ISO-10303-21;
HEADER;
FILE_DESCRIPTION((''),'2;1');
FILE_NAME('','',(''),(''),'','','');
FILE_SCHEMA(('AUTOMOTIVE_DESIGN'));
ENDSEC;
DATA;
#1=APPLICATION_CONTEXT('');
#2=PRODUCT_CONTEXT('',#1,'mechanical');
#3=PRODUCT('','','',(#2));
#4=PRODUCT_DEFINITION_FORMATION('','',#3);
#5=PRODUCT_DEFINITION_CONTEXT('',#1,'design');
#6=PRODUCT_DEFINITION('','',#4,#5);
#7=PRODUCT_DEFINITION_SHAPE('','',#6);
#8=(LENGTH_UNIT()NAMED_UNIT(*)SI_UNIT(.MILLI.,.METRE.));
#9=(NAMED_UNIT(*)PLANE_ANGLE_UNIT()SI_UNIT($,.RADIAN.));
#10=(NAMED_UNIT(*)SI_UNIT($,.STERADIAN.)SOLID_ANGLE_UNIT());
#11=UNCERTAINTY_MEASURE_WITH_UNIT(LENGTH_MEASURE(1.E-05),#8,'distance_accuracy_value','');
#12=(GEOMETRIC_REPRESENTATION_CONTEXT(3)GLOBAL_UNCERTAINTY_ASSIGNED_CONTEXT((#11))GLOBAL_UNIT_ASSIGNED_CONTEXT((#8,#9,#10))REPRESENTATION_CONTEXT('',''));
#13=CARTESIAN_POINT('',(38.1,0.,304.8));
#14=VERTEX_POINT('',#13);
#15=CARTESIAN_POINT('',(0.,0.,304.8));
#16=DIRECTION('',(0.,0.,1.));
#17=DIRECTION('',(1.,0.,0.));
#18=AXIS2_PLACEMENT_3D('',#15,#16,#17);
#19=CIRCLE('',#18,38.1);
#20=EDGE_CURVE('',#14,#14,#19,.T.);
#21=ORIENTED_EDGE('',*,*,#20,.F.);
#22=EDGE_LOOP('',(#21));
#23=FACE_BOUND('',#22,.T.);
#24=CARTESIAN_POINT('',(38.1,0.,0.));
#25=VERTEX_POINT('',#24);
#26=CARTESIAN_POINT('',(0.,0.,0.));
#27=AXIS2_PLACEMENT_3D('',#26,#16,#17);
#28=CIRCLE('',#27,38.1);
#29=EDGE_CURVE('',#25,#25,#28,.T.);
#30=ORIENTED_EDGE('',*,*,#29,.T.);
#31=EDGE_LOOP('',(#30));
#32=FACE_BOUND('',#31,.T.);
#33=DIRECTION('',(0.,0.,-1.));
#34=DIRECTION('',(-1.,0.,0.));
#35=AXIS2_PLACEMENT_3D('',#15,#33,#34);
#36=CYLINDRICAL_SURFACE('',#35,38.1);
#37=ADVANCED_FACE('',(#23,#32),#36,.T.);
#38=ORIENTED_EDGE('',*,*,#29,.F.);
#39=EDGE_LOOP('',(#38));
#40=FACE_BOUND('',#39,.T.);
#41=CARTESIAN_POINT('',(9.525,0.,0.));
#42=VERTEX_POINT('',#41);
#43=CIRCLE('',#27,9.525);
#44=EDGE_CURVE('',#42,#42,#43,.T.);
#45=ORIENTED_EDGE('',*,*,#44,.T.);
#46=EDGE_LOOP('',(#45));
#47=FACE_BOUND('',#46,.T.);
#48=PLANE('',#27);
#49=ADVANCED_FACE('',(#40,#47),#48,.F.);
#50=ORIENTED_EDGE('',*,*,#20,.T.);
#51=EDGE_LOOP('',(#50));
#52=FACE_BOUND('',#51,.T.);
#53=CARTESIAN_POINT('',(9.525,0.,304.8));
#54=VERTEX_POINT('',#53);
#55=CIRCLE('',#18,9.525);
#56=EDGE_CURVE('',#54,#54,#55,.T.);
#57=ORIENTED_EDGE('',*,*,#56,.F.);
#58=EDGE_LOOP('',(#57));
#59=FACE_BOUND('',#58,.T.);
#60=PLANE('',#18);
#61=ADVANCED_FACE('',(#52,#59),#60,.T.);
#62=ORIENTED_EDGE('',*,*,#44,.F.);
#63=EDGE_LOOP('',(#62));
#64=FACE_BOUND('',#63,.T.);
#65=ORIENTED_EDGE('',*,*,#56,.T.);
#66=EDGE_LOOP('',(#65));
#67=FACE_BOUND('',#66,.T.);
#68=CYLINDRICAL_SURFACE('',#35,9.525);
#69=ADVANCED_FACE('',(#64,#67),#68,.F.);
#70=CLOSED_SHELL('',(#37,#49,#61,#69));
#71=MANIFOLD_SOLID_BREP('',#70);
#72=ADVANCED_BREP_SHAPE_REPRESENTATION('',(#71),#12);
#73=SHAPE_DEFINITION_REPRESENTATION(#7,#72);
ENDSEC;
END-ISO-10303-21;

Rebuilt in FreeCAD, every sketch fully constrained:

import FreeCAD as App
import Part
import Sketcher
Q = App.Units.Quantity

doc = App.newDocument("Part")
params = doc.addObject("Spreadsheet::Sheet", "Params")
for row, (alias, value) in enumerate([
    ("sketch1_diameter", "3 in"),
    ("sketch1_diameter2", "0.75 in"),
    ("pad1_length", "12 in"),
], start=1):
    params.set(f"A{row}", alias)
    params.set(f"B{row}", "=" + value)
    params.setAlias(f"B{row}", alias)

body = doc.addObject("PartDesign::Body", "Body")

# Sketch on XY plane
sketch1 = doc.addObject("Sketcher::SketchObject", "Sketch")
body.addObject(sketch1)
sketch1.AttachmentSupport = (doc.XY_Plane, [""])
sketch1.MapMode = "FlatFace"
sketch1.addGeometry(Part.Circle(App.Vector(0, 0, 0), App.Vector(0, 0, 1), 38), False)
sketch1.addGeometry(Part.Circle(App.Vector(0, 0, 0), App.Vector(0, 0, 1), 10), False)
sketch1.addConstraint(Sketcher.Constraint("Coincident", 0, 3, -1, 1))
sketch1.addConstraint(Sketcher.Constraint("Coincident", 1, 3, -1, 1))
sketch1.addConstraint(Sketcher.Constraint("Diameter", 0, Q("3 in")))
sketch1.addConstraint(Sketcher.Constraint("Diameter", 1, Q("0.75 in")))
sketch1.setExpression("Constraints[2]", "Params.sketch1_diameter")
sketch1.setExpression("Constraints[3]", "Params.sketch1_diameter2")
pad1 = doc.addObject("PartDesign::Pad", "Pad")
body.addObject(pad1)
pad1.Profile = sketch1
pad1.setExpression("Length", "Params.pad1_length")

doc.recompute()
